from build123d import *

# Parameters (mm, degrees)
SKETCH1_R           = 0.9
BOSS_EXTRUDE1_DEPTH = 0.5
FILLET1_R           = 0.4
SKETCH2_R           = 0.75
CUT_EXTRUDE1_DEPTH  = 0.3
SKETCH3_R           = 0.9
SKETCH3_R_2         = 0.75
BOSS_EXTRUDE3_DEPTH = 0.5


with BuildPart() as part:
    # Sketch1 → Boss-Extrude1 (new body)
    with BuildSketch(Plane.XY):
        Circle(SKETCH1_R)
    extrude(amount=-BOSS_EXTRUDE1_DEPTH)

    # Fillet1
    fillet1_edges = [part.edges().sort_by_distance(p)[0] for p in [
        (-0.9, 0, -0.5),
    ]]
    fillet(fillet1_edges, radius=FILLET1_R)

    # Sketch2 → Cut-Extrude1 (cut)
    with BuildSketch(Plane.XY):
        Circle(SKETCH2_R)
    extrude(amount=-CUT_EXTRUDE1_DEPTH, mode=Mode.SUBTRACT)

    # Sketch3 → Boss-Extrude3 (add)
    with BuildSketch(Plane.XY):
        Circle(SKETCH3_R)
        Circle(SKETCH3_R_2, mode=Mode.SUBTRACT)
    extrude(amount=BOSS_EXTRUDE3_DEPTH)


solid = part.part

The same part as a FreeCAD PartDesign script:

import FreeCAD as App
import Part
import Sketcher

V = App.Vector


def edges_at(feature, points):
    """Names of the edges that pass closest to the given points."""
    edges = feature.Shape.Edges
    near = lambda p: min(range(len(edges)), key=lambda i: edges[i].distToShape(Part.Vertex(*p))[0])
    return sorted({f"Edge{near(p) + 1}" for p in points})

doc = App.newDocument("Part")
body = doc.addObject("PartDesign::Body", "Body")

# Sketch on XY plane
sketch1 = body.newObject("Sketcher::SketchObject", "Sketch")
sketch1.AttachmentSupport = (doc.getObject("XY_Plane"), [""])
sketch1.MapMode = "FlatFace"
sketch1.addGeometry(Part.Circle(V(0, 0, 0), V(0, 0, 1), 0.9), False)
sketch1.addConstraint(Sketcher.Constraint("Coincident", 0, 3, -1, 1))
sketch1.addConstraint(Sketcher.Constraint("Diameter", 0, 1.8))
pad1 = body.newObject("PartDesign::Pad", "Pad")
pad1.Profile = sketch1
pad1.Length = 0.5
pad1.Reversed = True
doc.recompute()

fillet = body.newObject("PartDesign::Fillet", "Fillet")
fillet.Base = (pad1, edges_at(pad1, [(-0.9, 0, -0.5)]))
fillet.Radius = 0.4

# Sketch on XY plane
sketch2 = body.newObject("Sketcher::SketchObject", "Sketch001")
sketch2.AttachmentSupport = (doc.getObject("XY_Plane"), [""])
sketch2.MapMode = "FlatFace"
sketch2.addGeometry(Part.Circle(V(0, 0, 0), V(0, 0, 1), 0.75), False)
sketch2.addConstraint(Sketcher.Constraint("Coincident", 0, 3, -1, 1))
sketch2.addConstraint(Sketcher.Constraint("Diameter", 0, 1.5))
pocket1 = body.newObject("PartDesign::Pocket", "Pocket")
pocket1.Profile = sketch2
pocket1.Length = 0.3

# Sketch on XY plane
sketch3 = body.newObject("Sketcher::SketchObject", "Sketch002")
sketch3.AttachmentSupport = (doc.getObject("XY_Plane"), [""])
sketch3.MapMode = "FlatFace"
sketch3.addGeometry(Part.Circle(V(0, 0, 0), V(0, 0, 1), 0.9), False)
sketch3.addGeometry(Part.Circle(V(0, 0, 0), V(0, 0, 1), 0.75), False)
sketch3.addConstraint(Sketcher.Constraint("Coincident", 0, 3, -1, 1))
sketch3.addConstraint(Sketcher.Constraint("Coincident", 1, 3, -1, 1))
sketch3.addConstraint(Sketcher.Constraint("Diameter", 0, 1.8))
sketch3.addConstraint(Sketcher.Constraint("Diameter", 1, 1.5))
pad2 = body.newObject("PartDesign::Pad", "Pad001")
pad2.Profile = sketch3
pad2.Length = 0.5

doc.recompute()
